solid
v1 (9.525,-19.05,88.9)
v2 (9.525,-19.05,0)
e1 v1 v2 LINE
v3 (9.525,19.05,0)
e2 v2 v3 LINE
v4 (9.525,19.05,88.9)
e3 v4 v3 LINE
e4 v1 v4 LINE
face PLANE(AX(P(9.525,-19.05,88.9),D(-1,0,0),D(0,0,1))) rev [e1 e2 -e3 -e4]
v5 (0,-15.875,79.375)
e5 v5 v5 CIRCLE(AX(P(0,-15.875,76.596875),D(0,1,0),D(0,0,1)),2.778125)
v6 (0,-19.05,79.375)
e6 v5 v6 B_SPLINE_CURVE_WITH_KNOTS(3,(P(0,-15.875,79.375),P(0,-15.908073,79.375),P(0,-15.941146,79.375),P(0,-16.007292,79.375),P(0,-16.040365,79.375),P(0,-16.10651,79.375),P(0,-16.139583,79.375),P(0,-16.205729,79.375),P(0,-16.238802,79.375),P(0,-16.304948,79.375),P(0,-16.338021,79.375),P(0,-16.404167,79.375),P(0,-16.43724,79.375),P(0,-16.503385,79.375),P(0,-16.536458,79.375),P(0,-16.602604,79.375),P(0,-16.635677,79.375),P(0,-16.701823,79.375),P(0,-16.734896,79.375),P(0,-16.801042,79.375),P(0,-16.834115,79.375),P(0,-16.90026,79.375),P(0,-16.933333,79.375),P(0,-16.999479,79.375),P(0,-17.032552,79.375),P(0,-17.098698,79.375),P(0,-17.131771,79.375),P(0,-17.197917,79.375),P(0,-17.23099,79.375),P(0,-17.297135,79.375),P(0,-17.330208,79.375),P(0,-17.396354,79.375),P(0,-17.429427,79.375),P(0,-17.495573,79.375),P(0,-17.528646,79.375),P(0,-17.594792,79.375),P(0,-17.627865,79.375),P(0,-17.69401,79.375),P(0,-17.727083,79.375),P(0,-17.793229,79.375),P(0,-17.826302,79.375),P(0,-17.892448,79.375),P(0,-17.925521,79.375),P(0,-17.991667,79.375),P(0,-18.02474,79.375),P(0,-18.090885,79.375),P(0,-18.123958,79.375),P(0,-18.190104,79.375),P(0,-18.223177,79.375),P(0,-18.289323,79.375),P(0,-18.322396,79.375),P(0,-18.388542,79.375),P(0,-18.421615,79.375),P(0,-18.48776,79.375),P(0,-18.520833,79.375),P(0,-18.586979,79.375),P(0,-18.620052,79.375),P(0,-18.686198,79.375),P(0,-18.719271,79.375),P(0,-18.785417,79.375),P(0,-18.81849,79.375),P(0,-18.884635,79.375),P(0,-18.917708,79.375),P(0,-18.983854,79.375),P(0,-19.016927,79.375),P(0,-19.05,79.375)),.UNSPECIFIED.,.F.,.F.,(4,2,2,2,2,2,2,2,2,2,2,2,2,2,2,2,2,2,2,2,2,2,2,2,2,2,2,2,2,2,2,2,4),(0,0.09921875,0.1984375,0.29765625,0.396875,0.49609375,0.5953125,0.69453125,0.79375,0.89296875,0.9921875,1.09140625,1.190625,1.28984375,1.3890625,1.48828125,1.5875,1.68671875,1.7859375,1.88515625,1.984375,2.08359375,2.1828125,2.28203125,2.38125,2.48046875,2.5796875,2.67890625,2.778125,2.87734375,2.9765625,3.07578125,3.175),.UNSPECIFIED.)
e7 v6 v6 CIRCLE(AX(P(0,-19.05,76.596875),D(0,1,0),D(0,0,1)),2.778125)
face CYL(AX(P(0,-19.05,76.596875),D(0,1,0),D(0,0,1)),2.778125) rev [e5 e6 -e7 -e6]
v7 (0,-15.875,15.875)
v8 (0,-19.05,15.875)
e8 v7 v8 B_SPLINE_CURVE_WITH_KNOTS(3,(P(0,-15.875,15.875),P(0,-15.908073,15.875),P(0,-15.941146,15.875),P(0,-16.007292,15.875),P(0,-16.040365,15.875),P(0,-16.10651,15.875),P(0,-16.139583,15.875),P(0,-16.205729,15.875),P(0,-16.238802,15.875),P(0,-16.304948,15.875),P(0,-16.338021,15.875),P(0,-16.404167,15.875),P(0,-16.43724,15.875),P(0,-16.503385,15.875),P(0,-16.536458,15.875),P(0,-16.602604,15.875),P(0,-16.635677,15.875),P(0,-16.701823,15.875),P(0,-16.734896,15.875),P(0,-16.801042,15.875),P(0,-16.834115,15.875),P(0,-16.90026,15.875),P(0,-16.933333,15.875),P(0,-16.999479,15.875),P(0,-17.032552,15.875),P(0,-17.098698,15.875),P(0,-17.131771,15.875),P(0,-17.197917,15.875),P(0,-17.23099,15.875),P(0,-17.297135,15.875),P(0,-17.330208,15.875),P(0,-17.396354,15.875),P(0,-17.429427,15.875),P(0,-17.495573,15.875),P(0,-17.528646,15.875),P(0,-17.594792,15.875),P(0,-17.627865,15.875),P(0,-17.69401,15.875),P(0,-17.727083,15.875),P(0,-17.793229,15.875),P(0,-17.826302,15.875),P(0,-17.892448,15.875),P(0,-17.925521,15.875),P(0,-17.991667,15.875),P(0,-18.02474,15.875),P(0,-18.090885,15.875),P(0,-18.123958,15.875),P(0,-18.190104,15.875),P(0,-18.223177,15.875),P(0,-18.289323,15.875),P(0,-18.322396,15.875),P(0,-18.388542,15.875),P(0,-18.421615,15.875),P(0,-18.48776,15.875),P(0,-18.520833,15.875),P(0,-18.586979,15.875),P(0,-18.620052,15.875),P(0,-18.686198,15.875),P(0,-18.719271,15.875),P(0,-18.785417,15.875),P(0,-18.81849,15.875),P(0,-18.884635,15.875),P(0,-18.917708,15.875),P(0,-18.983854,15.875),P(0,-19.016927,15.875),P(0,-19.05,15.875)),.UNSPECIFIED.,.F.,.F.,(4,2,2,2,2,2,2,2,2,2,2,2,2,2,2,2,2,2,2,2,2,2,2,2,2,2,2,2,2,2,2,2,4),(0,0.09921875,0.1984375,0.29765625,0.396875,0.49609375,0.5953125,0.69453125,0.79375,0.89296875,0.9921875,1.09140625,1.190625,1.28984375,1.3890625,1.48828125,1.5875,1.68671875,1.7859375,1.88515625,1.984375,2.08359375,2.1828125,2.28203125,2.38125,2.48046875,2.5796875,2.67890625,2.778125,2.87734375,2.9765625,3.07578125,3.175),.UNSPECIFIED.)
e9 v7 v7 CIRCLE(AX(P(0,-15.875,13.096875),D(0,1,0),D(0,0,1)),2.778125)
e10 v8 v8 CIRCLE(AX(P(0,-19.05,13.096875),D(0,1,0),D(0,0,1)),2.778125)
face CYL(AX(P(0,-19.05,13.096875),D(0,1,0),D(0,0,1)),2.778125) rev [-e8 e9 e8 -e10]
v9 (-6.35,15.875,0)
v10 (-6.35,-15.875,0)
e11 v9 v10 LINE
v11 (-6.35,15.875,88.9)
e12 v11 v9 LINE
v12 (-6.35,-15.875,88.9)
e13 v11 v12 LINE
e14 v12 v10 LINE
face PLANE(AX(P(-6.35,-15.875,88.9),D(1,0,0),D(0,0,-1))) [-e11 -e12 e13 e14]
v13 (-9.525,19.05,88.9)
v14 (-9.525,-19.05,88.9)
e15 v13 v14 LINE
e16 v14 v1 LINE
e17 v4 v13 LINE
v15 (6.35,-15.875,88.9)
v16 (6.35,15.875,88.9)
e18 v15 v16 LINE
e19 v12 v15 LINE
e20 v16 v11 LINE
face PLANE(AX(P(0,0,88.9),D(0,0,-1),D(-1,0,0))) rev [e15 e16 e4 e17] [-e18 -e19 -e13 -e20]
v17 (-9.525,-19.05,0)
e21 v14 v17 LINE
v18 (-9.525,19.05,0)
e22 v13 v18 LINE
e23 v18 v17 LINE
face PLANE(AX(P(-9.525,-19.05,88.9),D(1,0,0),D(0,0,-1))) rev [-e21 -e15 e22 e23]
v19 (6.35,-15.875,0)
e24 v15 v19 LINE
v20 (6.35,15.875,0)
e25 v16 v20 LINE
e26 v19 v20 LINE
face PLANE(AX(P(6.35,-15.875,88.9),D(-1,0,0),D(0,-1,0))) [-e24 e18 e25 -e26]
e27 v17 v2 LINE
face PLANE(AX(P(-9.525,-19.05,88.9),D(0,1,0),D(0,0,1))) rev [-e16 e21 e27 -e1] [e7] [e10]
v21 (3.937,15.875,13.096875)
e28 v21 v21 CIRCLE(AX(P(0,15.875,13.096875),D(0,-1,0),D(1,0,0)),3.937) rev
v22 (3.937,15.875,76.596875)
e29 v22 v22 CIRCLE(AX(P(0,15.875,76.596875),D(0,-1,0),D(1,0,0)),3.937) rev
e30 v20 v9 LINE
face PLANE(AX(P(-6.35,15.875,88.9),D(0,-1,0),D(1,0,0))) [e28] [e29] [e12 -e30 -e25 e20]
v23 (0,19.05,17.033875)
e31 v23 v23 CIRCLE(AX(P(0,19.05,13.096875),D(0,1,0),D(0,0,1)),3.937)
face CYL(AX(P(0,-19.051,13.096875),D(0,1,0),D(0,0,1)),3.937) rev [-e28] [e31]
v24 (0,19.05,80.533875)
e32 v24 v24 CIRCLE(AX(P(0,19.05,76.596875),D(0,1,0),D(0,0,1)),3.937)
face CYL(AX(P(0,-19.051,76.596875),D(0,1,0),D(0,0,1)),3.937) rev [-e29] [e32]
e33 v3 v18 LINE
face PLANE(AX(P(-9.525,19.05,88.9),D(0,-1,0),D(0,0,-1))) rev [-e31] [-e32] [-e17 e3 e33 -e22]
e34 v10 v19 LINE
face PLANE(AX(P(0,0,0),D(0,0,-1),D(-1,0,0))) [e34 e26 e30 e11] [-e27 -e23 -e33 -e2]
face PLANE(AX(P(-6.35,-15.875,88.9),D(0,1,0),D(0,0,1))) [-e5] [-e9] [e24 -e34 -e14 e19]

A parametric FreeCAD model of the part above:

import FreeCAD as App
import Part
import Sketcher

V = App.Vector
Q = App.Units.Quantity

doc = App.newDocument("Part")
params = doc.addObject("Spreadsheet::Sheet", "Params")
for row, (alias, value) in enumerate([
    ("sketch1_width", "0.5 in"),
    ("sketch1_height", "1.5 in"),
    ("sketch1_width2", "0.75 in"),
    ("sketch1_height2", "1.25 in"),
    ("pad1_length", "3.5 in"),
    ("sketch2_diameter", "0.21875 in"),
    ("sketch3_diameter", "0.31 in"),
    ("pocket2_length", "0.125 in"),
    ("sketch4_diameter", "0.31 in"),
    ("pocket3_length", "0.125 in"),
], start=1):
    params.set(f"A{row}", alias)
    params.set(f"B{row}", "=" + value)
    params.setAlias(f"B{row}", alias)

body = doc.addObject("PartDesign::Body", "Body")

# Sketch on XY plane
sketch1 = body.newObject("Sketcher::SketchObject", "Sketch")
sketch1.AttachmentSupport = (doc.getObject("XY_Plane"), [""])
sketch1.MapMode = "FlatFace"
sketch1.addGeometry([
    Part.LineSegment(V(-10, 19, 0), V(-10, -19, 0)),  # 0
    Part.LineSegment(V(-10, -19, 0), V(10, -19, 0)),  # 1
    Part.LineSegment(V(10, -19, 0), V(10, 19, 0)),  # 2
    Part.LineSegment(V(10, 19, 0), V(-10, 19, 0)),  # 3
    Part.LineSegment(V(6, -16, 0), V(-6, -16, 0)),  # 4
    Part.LineSegment(V(-6, -16, 0), V(-6, 16, 0)),  # 5
    Part.LineSegment(V(-6, 16, 0), V(6, 16, 0)),  # 6
    Part.LineSegment(V(6, 16, 0), V(6, -16, 0)),  # 7
], False)
sketch1.addConstraint([
    Sketcher.Constraint("Coincident", 0, 2, 1, 1),
    Sketcher.Constraint("Coincident", 1, 2, 2, 1),
    Sketcher.Constraint("Coincident", 2, 2, 3, 1),
    Sketcher.Constraint("Coincident", 3, 2, 0, 1),
    Sketcher.Constraint("Coincident", 4, 2, 5, 1),
    Sketcher.Constraint("Coincident", 5, 2, 6, 1),
    Sketcher.Constraint("Coincident", 6, 2, 7, 1),
    Sketcher.Constraint("Coincident", 7, 2, 4, 1),
    Sketcher.Constraint("Vertical", 0),
    Sketcher.Constraint("Horizontal", 1),
    Sketcher.Constraint("Vertical", 2),
    Sketcher.Constraint("Horizontal", 3),
    Sketcher.Constraint("Horizontal", 4),
    Sketcher.Constraint("Vertical", 5),
    Sketcher.Constraint("Horizontal", 6),
    Sketcher.Constraint("Vertical", 7),
    Sketcher.Constraint("Symmetric", 0, 2, 2, 2, -1, 1),
    Sketcher.Constraint("Symmetric", 4, 2, 6, 2, -1, 1),
    Sketcher.Constraint("DistanceX", 4, 2, 4, 1, Q("0.5 in")),
    Sketcher.Constraint("DistanceY", 0, 2, 0, 1, Q("1.5 in")),
    Sketcher.Constraint("DistanceX", 1, 1, 1, 2, Q("0.75 in")),
    Sketcher.Constraint("DistanceY", 5, 1, 5, 2, Q("1.25 in")),
])
sketch1.setExpression("Constraints[18]", "Params.sketch1_width")
sketch1.setExpression("Constraints[19]", "Params.sketch1_height")
sketch1.setExpression("Constraints[20]", "Params.sketch1_width2")
sketch1.setExpression("Constraints[21]", "Params.sketch1_height2")
pad1 = body.newObject("PartDesign::Pad", "Pad")
pad1.Profile = sketch1
pad1.setExpression("Length", "Params.pad1_length")

# Sketch on XZ plane
sketch2 = body.newObject("Sketcher::SketchObject", "Sketch001")
sketch2.AttachmentSupport = (doc.getObject("XZ_Plane"), [""])
sketch2.MapMode = "FlatFace"
sketch2.AttachmentOffset = App.Placement(V(0, 0, -0.75 * 25.4), App.Rotation())
sketch2.addGeometry([
    Part.Circle(V(0, 76.6, 0), V(0, 0, 1), 2.8),
    Part.Circle(V(0, 13.1, 0), V(0, 0, 1), 2.8),
], False)
sketch2.addConstraint([
    Sketcher.Constraint("Equal", 0, 1),
    Sketcher.Constraint("PointOnObject", 0, 3, -2),
    Sketcher.Constraint("PointOnObject", 1, 3, -2),
    Sketcher.Constraint("Diameter", 0, Q("0.21875 in")),
    Sketcher.Constraint("DistanceY", 1, 3, 0, 3, Q("2.5 in")),
    Sketcher.Constraint("DistanceY", -1, 1, 0, 3, Q("3.015625 in")),
])
sketch2.setExpression("Constraints[3]", "Params.sketch2_diameter")
pocket1 = body.newObject("PartDesign::Pocket", "Pocket")
pocket1.Profile = sketch2
pocket1.Type = "ThroughAll"
pocket1.Reversed = True

# Sketch on XZ plane
sketch3 = body.newObject("Sketcher::SketchObject", "Sketch002")
sketch3.AttachmentSupport = (doc.getObject("XZ_Plane"), [""])
sketch3.MapMode = "FlatFace"
sketch3.AttachmentOffset = App.Placement(V(0, 0, -0.75 * 25.4), App.Rotation())
sketch3.addGeometry(Part.Circle(V(0, 76.6, 0), V(0, 0, 1), 3.9), False)
sketch3.addConstraint([
    Sketcher.Constraint("PointOnObject", 0, 3, -2),
    Sketcher.Constraint("Diameter", 0, Q("0.31 in")),
    Sketcher.Constraint("DistanceY", -1, 1, 0, 3, Q("3.015625 in")),
])
sketch3.setExpression("Constraints[1]", "Params.sketch3_diameter")
pocket2 = body.newObject("PartDesign::Pocket", "Pocket001")
pocket2.Profile = sketch3
pocket2.setExpression("Length", "Params.pocket2_length")
pocket2.Reversed = True

# Sketch on XZ plane
sketch4 = body.newObject("Sketcher::SketchObject", "Sketch003")
sketch4.AttachmentSupport = (doc.getObject("XZ_Plane"), [""])
sketch4.MapMode = "FlatFace"
sketch4.AttachmentOffset = App.Placement(V(0, 0, -0.75 * 25.4), App.Rotation())
sketch4.addGeometry(Part.Circle(V(0, 13.1, 0), V(0, 0, 1), 3.9), False)
sketch4.addConstraint([
    Sketcher.Constraint("PointOnObject", 0, 3, -2),
    Sketcher.Constraint("Diameter", 0, Q("0.31 in")),
    Sketcher.Constraint("DistanceY", -1, 1, 0, 3, Q("0.515625 in")),
])
sketch4.setExpression("Constraints[1]", "Params.sketch4_diameter")
pocket3 = body.newObject("PartDesign::Pocket", "Pocket002")
pocket3.Profile = sketch4
pocket3.setExpression("Length", "Params.pocket3_length")
pocket3.Reversed = True

doc.recompute()
